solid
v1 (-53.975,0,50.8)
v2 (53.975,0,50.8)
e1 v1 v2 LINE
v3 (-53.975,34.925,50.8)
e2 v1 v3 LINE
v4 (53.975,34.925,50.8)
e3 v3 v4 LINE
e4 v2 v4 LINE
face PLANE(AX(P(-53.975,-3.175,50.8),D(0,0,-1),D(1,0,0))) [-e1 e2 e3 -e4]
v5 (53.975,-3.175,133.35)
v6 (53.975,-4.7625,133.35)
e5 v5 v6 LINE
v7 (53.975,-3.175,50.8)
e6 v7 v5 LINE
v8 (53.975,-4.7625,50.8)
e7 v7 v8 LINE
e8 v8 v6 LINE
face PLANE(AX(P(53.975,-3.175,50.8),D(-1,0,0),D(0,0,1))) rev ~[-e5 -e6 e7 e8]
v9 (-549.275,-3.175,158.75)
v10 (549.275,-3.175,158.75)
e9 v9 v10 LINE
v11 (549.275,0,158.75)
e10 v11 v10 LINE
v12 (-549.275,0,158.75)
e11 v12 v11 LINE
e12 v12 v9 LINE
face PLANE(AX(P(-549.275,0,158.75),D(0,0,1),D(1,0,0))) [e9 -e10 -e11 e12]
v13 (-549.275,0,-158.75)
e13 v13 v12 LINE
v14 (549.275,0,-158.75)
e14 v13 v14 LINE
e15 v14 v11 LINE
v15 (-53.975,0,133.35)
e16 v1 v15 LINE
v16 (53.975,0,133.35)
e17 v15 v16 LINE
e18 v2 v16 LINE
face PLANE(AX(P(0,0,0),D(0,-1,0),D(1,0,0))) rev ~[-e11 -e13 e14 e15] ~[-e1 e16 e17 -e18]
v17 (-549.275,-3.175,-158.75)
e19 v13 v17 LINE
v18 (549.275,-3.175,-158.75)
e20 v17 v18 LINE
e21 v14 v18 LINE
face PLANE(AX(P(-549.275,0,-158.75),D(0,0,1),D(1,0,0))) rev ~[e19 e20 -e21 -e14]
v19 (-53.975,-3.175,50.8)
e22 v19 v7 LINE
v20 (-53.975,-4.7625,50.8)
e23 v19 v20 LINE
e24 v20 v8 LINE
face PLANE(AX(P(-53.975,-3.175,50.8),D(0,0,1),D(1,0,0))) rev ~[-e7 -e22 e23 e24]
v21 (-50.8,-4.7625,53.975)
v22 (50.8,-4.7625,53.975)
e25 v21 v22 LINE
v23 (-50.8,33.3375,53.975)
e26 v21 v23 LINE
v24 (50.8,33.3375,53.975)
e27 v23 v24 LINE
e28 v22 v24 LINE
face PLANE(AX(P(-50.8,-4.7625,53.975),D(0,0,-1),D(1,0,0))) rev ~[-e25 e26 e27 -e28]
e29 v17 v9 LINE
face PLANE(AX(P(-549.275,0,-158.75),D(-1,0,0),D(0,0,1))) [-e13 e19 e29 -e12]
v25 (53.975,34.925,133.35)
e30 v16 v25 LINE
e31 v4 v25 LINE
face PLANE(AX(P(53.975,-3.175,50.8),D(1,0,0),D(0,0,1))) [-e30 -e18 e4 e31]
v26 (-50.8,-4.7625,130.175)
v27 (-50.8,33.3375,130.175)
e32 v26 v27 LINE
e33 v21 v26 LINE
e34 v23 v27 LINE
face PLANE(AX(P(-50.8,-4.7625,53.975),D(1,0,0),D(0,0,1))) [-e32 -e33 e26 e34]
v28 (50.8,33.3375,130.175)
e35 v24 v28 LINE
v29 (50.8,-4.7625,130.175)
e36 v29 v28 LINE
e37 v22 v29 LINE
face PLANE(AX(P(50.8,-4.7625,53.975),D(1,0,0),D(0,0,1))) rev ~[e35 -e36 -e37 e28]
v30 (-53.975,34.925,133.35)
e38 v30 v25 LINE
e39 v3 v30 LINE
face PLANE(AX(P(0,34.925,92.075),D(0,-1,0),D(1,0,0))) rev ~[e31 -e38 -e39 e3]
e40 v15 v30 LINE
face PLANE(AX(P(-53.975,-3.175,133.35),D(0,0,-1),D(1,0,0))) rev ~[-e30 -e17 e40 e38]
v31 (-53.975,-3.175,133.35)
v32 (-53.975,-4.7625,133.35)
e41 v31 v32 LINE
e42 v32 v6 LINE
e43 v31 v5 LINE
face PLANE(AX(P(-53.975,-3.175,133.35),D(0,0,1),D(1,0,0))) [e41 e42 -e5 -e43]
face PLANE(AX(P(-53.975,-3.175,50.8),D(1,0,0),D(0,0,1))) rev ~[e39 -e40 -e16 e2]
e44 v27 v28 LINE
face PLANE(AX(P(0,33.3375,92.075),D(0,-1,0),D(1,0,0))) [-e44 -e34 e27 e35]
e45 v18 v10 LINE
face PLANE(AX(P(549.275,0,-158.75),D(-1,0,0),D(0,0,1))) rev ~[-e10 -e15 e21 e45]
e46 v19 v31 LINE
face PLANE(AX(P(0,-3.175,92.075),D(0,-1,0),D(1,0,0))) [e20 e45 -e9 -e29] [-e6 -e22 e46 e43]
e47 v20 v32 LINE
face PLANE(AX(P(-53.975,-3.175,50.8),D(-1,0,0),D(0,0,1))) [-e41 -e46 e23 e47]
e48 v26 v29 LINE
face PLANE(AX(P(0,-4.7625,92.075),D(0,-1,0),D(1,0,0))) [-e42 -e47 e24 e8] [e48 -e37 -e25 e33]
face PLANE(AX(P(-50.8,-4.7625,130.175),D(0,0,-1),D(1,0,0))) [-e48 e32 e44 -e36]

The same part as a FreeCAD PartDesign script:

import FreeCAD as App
import Part
import Sketcher

V = App.Vector
Q = App.Units.Quantity


def add_polygon(sketch, points):
    """Adds a closed chain of lines whose ends are joined by coincident constraints."""
    first, n = sketch.GeometryCount, len(points)
    for a, b in zip(points, points[1:] + points[:1]):
        sketch.addGeometry(Part.LineSegment(App.Vector(*a, 0), App.Vector(*b, 0)), False)
    for i in range(n):
        sketch.addConstraint(Sketcher.Constraint("Coincident", first + i, 2, first + (i + 1) % n, 1))

doc = App.newDocument("Part")
body = doc.addObject("PartDesign::Body", "Body")

# Sketch on XZ plane
sketch1 = body.newObject("Sketcher::SketchObject", "Sketch")
sketch1.AttachmentSupport = (doc.getObject("XZ_Plane"), [""])
sketch1.MapMode = "FlatFace"
add_polygon(sketch1, [(-549, 159), (-549, -159), (549, -159), (549, 159)])  # lines 0-3
sketch1.addConstraint([
    Sketcher.Constraint("Vertical", 0),
    Sketcher.Constraint("Horizontal", 1),
    Sketcher.Constraint("Vertical", 2),
    Sketcher.Constraint("Horizontal", 3),
    Sketcher.Constraint("Symmetric", 0, 2, 2, 2, -1, 1),
    Sketcher.Constraint("DistanceY", 0, 2, 0, 1, Q("12.5 in")),
    Sketcher.Constraint("DistanceX", 1, 1, 1, 2, Q("43.25 in")),
])
pad1 = body.newObject("PartDesign::Pad", "Pad")
pad1.Profile = sketch1
pad1.Length = Q("0.125 in")

# Sketch on XZ plane
sketch2 = body.newObject("Sketcher::SketchObject", "Sketch001")
sketch2.AttachmentSupport = (doc.getObject("XZ_Plane"), [""])
sketch2.MapMode = "FlatFace"
sketch2.AttachmentOffset = App.Placement(V(0, 0, 0.125 * 25.4), App.Rotation())
add_polygon(sketch2, [(-54, 133), (-54, 51), (54, 51), (54, 133)])  # lines 0-3
sketch2.addConstraint([
    Sketcher.Constraint("Vertical", 0),
    Sketcher.Constraint("Horizontal", 1),
    Sketcher.Constraint("Vertical", 2),
    Sketcher.Constraint("Horizontal", 3),
    Sketcher.Constraint("DistanceY", -1, 1, 0, 2, Q("2 in")),
    Sketcher.Constraint("DistanceX", 1, 1, 1, 2, Q("4.25 in")),
    Sketcher.Constraint("DistanceY", 0, 2, 0, 1, Q("3.25 in")),
    Sketcher.Constraint("DistanceX", 0, 2, -1, 1, Q("2.125 in")),
])
pad2 = body.newObject("PartDesign::Pad", "Pad001")
pad2.Profile = sketch2
pad2.Length = Q("1.5 in")
pad2.Reversed = True

# Sketch on XZ plane
sketch3 = body.newObject("Sketcher::SketchObject", "Sketch002")
sketch3.AttachmentSupport = (doc.getObject("XZ_Plane"), [""])
sketch3.MapMode = "FlatFace"
sketch3.AttachmentOffset = App.Placement(V(0, 0, 0.125 * 25.4), App.Rotation())
add_polygon(sketch3, [(-54, 133), (-54, 51), (54, 51), (54, 133)])  # lines 0-3
sketch3.addConstraint([
    Sketcher.Constraint("Vertical", 0),
    Sketcher.Constraint("Horizontal", 1),
    Sketcher.Constraint("Vertical", 2),
    Sketcher.Constraint("Horizontal", 3),
    Sketcher.Constraint("DistanceY", -1, 1, 0, 2, Q("2 in")),
    Sketcher.Constraint("DistanceX", 1, 1, 1, 2, Q("4.25 in")),
    Sketcher.Constraint("DistanceY", 0, 2, 0, 1, Q("3.25 in")),
    Sketcher.Constraint("DistanceX", 0, 2, -1, 1, Q("2.125 in")),
])
pad3 = body.newObject("PartDesign::Pad", "Pad002")
pad3.Profile = sketch3
pad3.Length = Q("0.0625 in")

# Sketch on XZ plane
sketch4 = body.newObject("Sketcher::SketchObject", "Sketch003")
sketch4.AttachmentSupport = (doc.getObject("XZ_Plane"), [""])
sketch4.MapMode = "FlatFace"
sketch4.AttachmentOffset = App.Placement(V(0, 0, 0.1875 * 25.4), App.Rotation())
add_polygon(sketch4, [(-51, 130), (-51, 54), (51, 54), (51, 130)])  # lines 0-3
sketch4.addConstraint([
    Sketcher.Constraint("Vertical", 0),
    Sketcher.Constraint("Horizontal", 1),
    Sketcher.Constraint("Vertical", 2),
    Sketcher.Constraint("Horizontal", 3),
    Sketcher.Constraint("DistanceX", 1, 1, 1, 2, Q("4 in")),
    Sketcher.Constraint("DistanceY", 0, 2, 0, 1, Q("3 in")),
    Sketcher.Constraint("DistanceX", 0, 2, -1, 1, Q("2 in")),
    Sketcher.Constraint("DistanceY", -1, 1, 0, 2, Q("2.125 in")),
])
pocket1 = body.newObject("PartDesign::Pocket", "Pocket")
pocket1.Profile = sketch4
pocket1.Length = Q("1.5 in")

doc.recompute()
